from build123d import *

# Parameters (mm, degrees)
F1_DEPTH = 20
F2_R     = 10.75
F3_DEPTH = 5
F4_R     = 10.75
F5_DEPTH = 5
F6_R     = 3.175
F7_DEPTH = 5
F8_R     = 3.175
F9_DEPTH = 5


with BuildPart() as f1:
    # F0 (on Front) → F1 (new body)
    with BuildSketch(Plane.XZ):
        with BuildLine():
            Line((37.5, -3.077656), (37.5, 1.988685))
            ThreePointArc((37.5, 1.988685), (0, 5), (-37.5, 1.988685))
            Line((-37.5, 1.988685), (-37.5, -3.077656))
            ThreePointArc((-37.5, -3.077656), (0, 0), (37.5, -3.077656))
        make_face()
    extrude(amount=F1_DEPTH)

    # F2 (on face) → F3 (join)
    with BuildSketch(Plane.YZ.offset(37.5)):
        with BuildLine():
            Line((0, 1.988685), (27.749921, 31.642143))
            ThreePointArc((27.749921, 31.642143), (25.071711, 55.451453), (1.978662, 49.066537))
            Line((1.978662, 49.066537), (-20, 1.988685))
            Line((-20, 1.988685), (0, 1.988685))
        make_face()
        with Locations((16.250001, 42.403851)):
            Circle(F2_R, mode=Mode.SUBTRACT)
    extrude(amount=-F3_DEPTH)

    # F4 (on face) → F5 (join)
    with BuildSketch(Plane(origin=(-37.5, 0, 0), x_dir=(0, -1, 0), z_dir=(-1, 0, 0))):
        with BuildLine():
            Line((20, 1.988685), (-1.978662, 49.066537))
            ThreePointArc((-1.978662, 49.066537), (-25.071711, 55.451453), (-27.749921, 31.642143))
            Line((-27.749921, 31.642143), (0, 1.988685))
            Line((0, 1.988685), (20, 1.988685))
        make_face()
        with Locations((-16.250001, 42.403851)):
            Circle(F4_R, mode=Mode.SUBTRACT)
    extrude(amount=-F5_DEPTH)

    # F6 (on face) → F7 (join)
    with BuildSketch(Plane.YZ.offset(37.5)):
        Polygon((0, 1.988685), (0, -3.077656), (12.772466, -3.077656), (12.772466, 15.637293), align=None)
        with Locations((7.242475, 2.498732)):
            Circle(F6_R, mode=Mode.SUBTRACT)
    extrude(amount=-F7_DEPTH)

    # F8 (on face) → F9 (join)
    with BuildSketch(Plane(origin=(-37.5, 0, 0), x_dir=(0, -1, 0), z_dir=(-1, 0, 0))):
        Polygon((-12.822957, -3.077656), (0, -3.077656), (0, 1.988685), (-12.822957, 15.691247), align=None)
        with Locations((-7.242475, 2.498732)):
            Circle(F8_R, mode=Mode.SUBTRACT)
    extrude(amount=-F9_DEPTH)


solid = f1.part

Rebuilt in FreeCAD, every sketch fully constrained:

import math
import FreeCAD as App
import Part
import Sketcher
Q = App.Units.Quantity

doc = App.newDocument("Part")
body = doc.addObject("PartDesign::Body", "Body")

# Sketch on XZ plane
sketch1 = body.newObject("Sketcher::SketchObject", "Sketch")
sketch1.AttachmentSupport = (doc.getObject("XZ_Plane"), [""])
sketch1.MapMode = "FlatFace"
sketch1.addGeometry(Part.LineSegment(App.Vector(37.5, -3.077656, 0), App.Vector(37.5, 1.988685, 0)), False)
sketch1.addGeometry(Part.ArcOfCircle(Part.Circle(App.Vector(0, -229.999995, 0), App.Vector(0, 0, 1), 234.999995), math.radians(80.817802), math.radians(99.182198)), False)
sketch1.addGeometry(Part.LineSegment(App.Vector(-37.5, 1.988685, 0), App.Vector(-37.5, -3.077656, 0)), False)
sketch1.addGeometry(Part.ArcOfCircle(Part.Circle(App.Vector(0, -230.000034, 0), App.Vector(0, 0, 1), 230.000034), math.radians(80.616406), math.radians(99.383594)), False)
sketch1.addConstraint(Sketcher.Constraint("Coincident", 0, 2, 1, 1))
sketch1.addConstraint(Sketcher.Constraint("Coincident", 1, 2, 2, 1))
sketch1.addConstraint(Sketcher.Constraint("Coincident", 2, 2, 3, 2))
sketch1.addConstraint(Sketcher.Constraint("Coincident", 3, 1, 0, 1))
sketch1.addConstraint(Sketcher.Constraint("Vertical", 0))
sketch1.addConstraint(Sketcher.Constraint("Vertical", 2))
sketch1.addConstraint(Sketcher.Constraint("Symmetric", 0, 2, 1, 2, -2))
sketch1.addConstraint(Sketcher.Constraint("PointOnObject", 3, 3, -2))
sketch1.addConstraint(Sketcher.Constraint("DistanceX", 1, 2, 0, 2, Q("75 mm")))
sketch1.addConstraint(Sketcher.Constraint("Radius", 1, Q("234.999995 mm")))
sketch1.addConstraint(Sketcher.Constraint("Radius", 3, Q("230.000034 mm")))
sketch1.addConstraint(Sketcher.Constraint("DistanceY", 0, 1, 0, 2, Q("5.066341 mm")))
sketch1.addConstraint(Sketcher.Constraint("DistanceY", 1, 3, -1, 1, Q("229.999995 mm")))
pad1 = body.newObject("PartDesign::Pad", "Pad")
pad1.Profile = sketch1
pad1.Length = 20

# Sketch on YZ plane
sketch2 = body.newObject("Sketcher::SketchObject", "Sketch001")
sketch2.AttachmentSupport = (doc.getObject("YZ_Plane"), [""])
sketch2.MapMode = "FlatFace"
sketch2.AttachmentOffset = App.Placement(App.Vector(0, 0, 37.5), App.Rotation())
sketch2.addGeometry(Part.LineSegment(App.Vector(0, 1.988685, 0), App.Vector(27.749921, 31.642143, 0)), False)
sketch2.addGeometry(Part.ArcOfCircle(Part.Circle(App.Vector(16.250001, 42.40385, 0), App.Vector(0, 0, 1), 15.75), math.radians(-43.100723), math.radians(154.974112)), False)
sketch2.addGeometry(Part.LineSegment(App.Vector(1.978662, 49.066537, 0), App.Vector(-20, 1.988685, 0)), False)
sketch2.addGeometry(Part.LineSegment(App.Vector(-20, 1.988685, 0), App.Vector(0, 1.988685, 0)), False)
sketch2.addGeometry(Part.Circle(App.Vector(16.250001, 42.403851, 0), App.Vector(0, 0, 1), 10.75), False)
sketch2.addConstraint(Sketcher.Constraint("Tangent", 0, 2, 1, 1))
sketch2.addConstraint(Sketcher.Constraint("Tangent", 1, 2, 2, 1))
sketch2.addConstraint(Sketcher.Constraint("Coincident", 2, 2, 3, 1))
sketch2.addConstraint(Sketcher.Constraint("Coincident", 3, 2, 0, 1))
sketch2.addConstraint(Sketcher.Constraint("Horizontal", 3))
sketch2.addConstraint(Sketcher.Constraint("Coincident", 4, 3, 1, 3))
sketch2.addConstraint(Sketcher.Constraint("PointOnObject", 3, 2, -2))
sketch2.addConstraint(Sketcher.Constraint("Diameter", 4, Q("21.5 mm")))
sketch2.addConstraint(Sketcher.Constraint("DistanceX", 3, 1, 3, 2, Q("20 mm")))
sketch2.addConstraint(Sketcher.Constraint("Radius", 1, Q("15.75 mm")))
sketch2.addConstraint(Sketcher.Constraint("DistanceX", -1, 1, 1, 3, Q("16.250001 mm")))
sketch2.addConstraint(Sketcher.Constraint("Distance", 0, Q("40.61263 mm")))
sketch2.addConstraint(Sketcher.Constraint("DistanceY", -1, 1, 1, 3, Q("42.40385 mm")))
pad2 = body.newObject("PartDesign::Pad", "Pad001")
pad2.Profile = sketch2
pad2.Length = 5
pad2.Reversed = True

# Sketch on YZ plane
sketch3 = body.newObject("Sketcher::SketchObject", "Sketch002")
sketch3.AttachmentSupport = (doc.getObject("YZ_Plane"), [""])
sketch3.MapMode = "FlatFace"
sketch3.AttachmentOffset = App.Placement(App.Vector(0, 0, -37.5), App.Rotation())
sketch3.addGeometry(Part.LineSegment(App.Vector(-20, 1.988685, 0), App.Vector(1.978662, 49.066537, 0)), False)
sketch3.addGeometry(Part.ArcOfCircle(Part.Circle(App.Vector(16.250001, 42.40385, 0), App.Vector(0, 0, 1), 15.75), math.radians(-43.100723), math.radians(154.974112)), False)
sketch3.addGeometry(Part.LineSegment(App.Vector(27.749921, 31.642143, 0), App.Vector(0, 1.988685, 0)), False)
sketch3.addGeometry(Part.LineSegment(App.Vector(0, 1.988685, 0), App.Vector(-20, 1.988685, 0)), False)
sketch3.addGeometry(Part.Circle(App.Vector(16.250001, 42.403851, 0), App.Vector(0, 0, 1), 10.75), False)
sketch3.addConstraint(Sketcher.Constraint("Tangent", 0, 2, 1, 2))
sketch3.addConstraint(Sketcher.Constraint("Tangent", 1, 1, 2, 1))
sketch3.addConstraint(Sketcher.Constraint("Coincident", 2, 2, 3, 1))
sketch3.addConstraint(Sketcher.Constraint("Coincident", 3, 2, 0, 1))
sketch3.addConstraint(Sketcher.Constraint("Horizontal", 3))
sketch3.addConstraint(Sketcher.Constraint("Coincident", 4, 3, 1, 3))
sketch3.addConstraint(Sketcher.Constraint("PointOnObject", 2, 2, -2))
sketch3.addConstraint(Sketcher.Constraint("Diameter", 4, Q("21.5 mm")))
sketch3.addConstraint(Sketcher.Constraint("DistanceX", 3, 2, 3, 1, Q("20 mm")))
sketch3.addConstraint(Sketcher.Constraint("Radius", 1, Q("15.75 mm")))
sketch3.addConstraint(Sketcher.Constraint("DistanceX", -1, 1, 1, 3, Q("16.250001 mm")))
sketch3.addConstraint(Sketcher.Constraint("Distance", 2, Q("40.61263 mm")))
sketch3.addConstraint(Sketcher.Constraint("DistanceY", -1, 1, 1, 3, Q("42.40385 mm")))
pad3 = body.newObject("PartDesign::Pad", "Pad002")
pad3.Profile = sketch3
pad3.Length = 5

# Sketch on YZ plane
sketch4 = body.newObject("Sketcher::SketchObject", "Sketch003")
sketch4.AttachmentSupport = (doc.getObject("YZ_Plane"), [""])
sketch4.MapMode = "FlatFace"
sketch4.AttachmentOffset = App.Placement(App.Vector(0, 0, 37.5), App.Rotation())
sketch4.addGeometry(Part.LineSegment(App.Vector(0, 1.988685, 0), App.Vector(0, -3.077656, 0)), False)
sketch4.addGeometry(Part.LineSegment(App.Vector(0, -3.077656, 0), App.Vector(12.772466, -3.077656, 0)), False)
sketch4.addGeometry(Part.LineSegment(App.Vector(12.772466, -3.077656, 0), App.Vector(12.772466, 15.637293, 0)), False)
sketch4.addGeometry(Part.LineSegment(App.Vector(12.772466, 15.637293, 0), App.Vector(0, 1.988685, 0)), False)
sketch4.addGeometry(Part.Circle(App.Vector(7.242475, 2.498732, 0), App.Vector(0, 0, 1), 3.175), False)
sketch4.addConstraint(Sketcher.Constraint("Coincident", 0, 2, 1, 1))
sketch4.addConstraint(Sketcher.Constraint("Coincident", 1, 2, 2, 1))
sketch4.addConstraint(Sketcher.Constraint("Coincident", 2, 2, 3, 1))
sketch4.addConstraint(Sketcher.Constraint("Coincident", 3, 2, 0, 1))
sketch4.addConstraint(Sketcher.Constraint("Vertical", 0))
sketch4.addConstraint(Sketcher.Constraint("Horizontal", 1))
sketch4.addConstraint(Sketcher.Constraint("Vertical", 2))
sketch4.addConstraint(Sketcher.Constraint("PointOnObject", 0, 2, -2))
sketch4.addConstraint(Sketcher.Constraint("Diameter", 4, Q("6.35 mm")))
sketch4.addConstraint(Sketcher.Constraint("DistanceY", 0, 2, 0, 1, Q("5.066341 mm")))
sketch4.addConstraint(Sketcher.Constraint("DistanceY", 2, 1, 2, 2, Q("18.714949 mm")))
sketch4.addConstraint(Sketcher.Constraint("Distance", 3, Q("18.69279 mm")))
sketch4.addConstraint(Sketcher.Constraint("DistanceY", -1, 1, 4, 3, Q("2.498732 mm")))
sketch4.addConstraint(Sketcher.Constraint("DistanceX", 4, 3, 1, 2, Q("5.529991 mm")))
sketch4.addConstraint(Sketcher.Constraint("DistanceY", 4, 3, 2, 2, Q("13.138561 mm")))
pad4 = body.newObject("PartDesign::Pad", "Pad003")
pad4.Profile = sketch4
pad4.Length = 5
pad4.Reversed = True

# Sketch on YZ plane
sketch5 = body.newObject("Sketcher::SketchObject", "Sketch004")
sketch5.AttachmentSupport = (doc.getObject("YZ_Plane"), [""])
sketch5.MapMode = "FlatFace"
sketch5.AttachmentOffset = App.Placement(App.Vector(0, 0, -37.5), App.Rotation())
sketch5.addGeometry(Part.LineSegment(App.Vector(12.822957, -3.077656, 0), App.Vector(0, -3.077656, 0)), False)
sketch5.addGeometry(Part.LineSegment(App.Vector(0, -3.077656, 0), App.Vector(0, 1.988685, 0)), False)
sketch5.addGeometry(Part.LineSegment(App.Vector(0, 1.988685, 0), App.Vector(12.822957, 15.691247, 0)), False)
sketch5.addGeometry(Part.LineSegment(App.Vector(12.822957, 15.691247, 0), App.Vector(12.822957, -3.077656, 0)), False)
sketch5.addGeometry(Part.Circle(App.Vector(7.242475, 2.498732, 0), App.Vector(0, 0, 1), 3.175), False)
sketch5.addConstraint(Sketcher.Constraint("Coincident", 0, 2, 1, 1))
sketch5.addConstraint(Sketcher.Constraint("Coincident", 1, 2, 2, 1))
sketch5.addConstraint(Sketcher.Constraint("Coincident", 2, 2, 3, 1))
sketch5.addConstraint(Sketcher.Constraint("Coincident", 3, 2, 0, 1))
sketch5.addConstraint(Sketcher.Constraint("Horizontal", 0))
sketch5.addConstraint(Sketcher.Constraint("Vertical", 1))
sketch5.addConstraint(Sketcher.Constraint("Vertical", 3))
sketch5.addConstraint(Sketcher.Constraint("PointOnObject", 0, 2, -2))
sketch5.addConstraint(Sketcher.Constraint("Diameter", 4, Q("6.35 mm")))
sketch5.addConstraint(Sketcher.Constraint("DistanceY", 1, 1, 1, 2, Q("5.066341 mm")))
sketch5.addConstraint(Sketcher.Constraint("DistanceX", 0, 2, 0, 1, Q("12.822957 mm")))
sketch5.addConstraint(Sketcher.Constraint("DistanceY", 3, 2, 3, 1, Q("18.768903 mm")))
sketch5.addConstraint(Sketcher.Constraint("DistanceY", -1, 1, 4, 3, Q("2.498732 mm")))
sketch5.addConstraint(Sketcher.Constraint("DistanceX", -1, 1, 4, 3, Q("7.242475 mm")))
sketch5.addConstraint(Sketcher.Constraint("DistanceY", 0, 2, -1, 1, Q("3.077656 mm")))
pad5 = body.newObject("PartDesign::Pad", "Pad004")
pad5.Profile = sketch5
pad5.Length = 5

doc.recompute()
